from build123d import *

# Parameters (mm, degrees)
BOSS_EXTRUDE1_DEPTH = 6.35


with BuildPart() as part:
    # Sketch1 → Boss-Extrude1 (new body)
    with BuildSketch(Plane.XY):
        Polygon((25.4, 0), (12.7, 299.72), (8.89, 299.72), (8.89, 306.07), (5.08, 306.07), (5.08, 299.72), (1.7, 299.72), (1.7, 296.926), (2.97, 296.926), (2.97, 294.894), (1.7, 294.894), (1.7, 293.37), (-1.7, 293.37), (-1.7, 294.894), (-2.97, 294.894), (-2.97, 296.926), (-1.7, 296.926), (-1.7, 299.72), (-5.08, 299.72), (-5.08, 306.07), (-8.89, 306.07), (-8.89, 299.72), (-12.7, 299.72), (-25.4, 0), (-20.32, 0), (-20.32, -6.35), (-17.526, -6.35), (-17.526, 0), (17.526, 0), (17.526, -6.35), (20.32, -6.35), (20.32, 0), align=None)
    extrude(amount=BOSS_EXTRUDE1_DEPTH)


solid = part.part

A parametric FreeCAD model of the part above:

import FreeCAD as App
import Part
import Sketcher

V = App.Vector
Q = App.Units.Quantity


def add_polygon(sketch, points):
    """Adds a closed chain of lines whose ends are joined by coincident constraints."""
    first, n = sketch.GeometryCount, len(points)
    for a, b in zip(points, points[1:] + points[:1]):
        sketch.addGeometry(Part.LineSegment(App.Vector(*a, 0), App.Vector(*b, 0)), False)
    for i in range(n):
        sketch.addConstraint(Sketcher.Constraint("Coincident", first + i, 2, first + (i + 1) % n, 1))

doc = App.newDocument("Part")
params = doc.addObject("Spreadsheet::Sheet", "Params")
for row, (alias, value) in enumerate([
    ("sketch1_width", "0.2 in"),
    ("sketch1_width2", "0.15 in"),
    ("sketch1_width3", "0.05 in"),
    ("sketch1_width4", "0.11 in"),
    ("sketch1_height", "0.25 in"),
    ("pad1_length", "0.25 in"),
], start=1):
    params.set(f"A{row}", alias)
    params.set(f"B{row}", "=" + value)
    params.setAlias(f"B{row}", alias)

body = doc.addObject("PartDesign::Body", "Body")

# Sketch on XY plane
sketch1 = body.newObject("Sketcher::SketchObject", "Sketch")
sketch1.AttachmentSupport = (doc.getObject("XY_Plane"), [""])
sketch1.MapMode = "FlatFace"
add_polygon(sketch1, [(25.4, 0), (12.7, 299.7), (8.9, 299.7), (8.9, 306.1), (5.1, 306.1), (5.1, 299.7), (1.7, 299.7), (1.7, 296.9), (3, 296.9), (3, 294.9), (1.7, 294.9), (1.7, 293.4), (-1.7, 293.4), (-1.7, 294.9), (-3, 294.9), (-3, 296.9), (-1.7, 296.9), (-1.7, 299.7), (-5.1, 299.7), (-5.1, 306.1), (-8.9, 306.1), (-8.9, 299.7), (-12.7, 299.7), (-25.4, 0), (-20.3, 0), (-20.3, -6.3), (-17.5, -6.3), (-17.5, 0), (17.5, 0), (17.5, -6.3), (20.3, -6.3), (20.3, 0)])  # lines 0-31
sketch1.addConstraint([
    Sketcher.Constraint("Horizontal", 1),
    Sketcher.Constraint("Vertical", 2),
    Sketcher.Constraint("Horizontal", 3),
    Sketcher.Constraint("Vertical", 4),
    Sketcher.Constraint("Horizontal", 5),
    Sketcher.Constraint("Vertical", 6),
    Sketcher.Constraint("Horizontal", 7),
    Sketcher.Constraint("Vertical", 8),
    Sketcher.Constraint("Horizontal", 9),
    Sketcher.Constraint("Vertical", 10),
    Sketcher.Constraint("Horizontal", 11),
    Sketcher.Constraint("Vertical", 12),
    Sketcher.Constraint("Horizontal", 13),
    Sketcher.Constraint("Vertical", 14),
    Sketcher.Constraint("Horizontal", 15),
    Sketcher.Constraint("Vertical", 16),
    Sketcher.Constraint("Horizontal", 17),
    Sketcher.Constraint("Vertical", 18),
    Sketcher.Constraint("Horizontal", 19),
    Sketcher.Constraint("Vertical", 20),
    Sketcher.Constraint("Horizontal", 21),
    Sketcher.Constraint("Horizontal", 23),
    Sketcher.Constraint("Vertical", 24),
    Sketcher.Constraint("Horizontal", 25),
    Sketcher.Constraint("Vertical", 26),
    Sketcher.Constraint("Horizontal", 27),
    Sketcher.Constraint("Vertical", 28),
    Sketcher.Constraint("Horizontal", 29),
    Sketcher.Constraint("Vertical", 30),
    Sketcher.Constraint("Horizontal", 31),
    Sketcher.Constraint("Symmetric", 26, 2, 27, 2, -1, 1),
    Sketcher.Constraint("Symmetric", 23, 2, 30, 2, -1, 1),
    Sketcher.Constraint("Symmetric", 9, 2, 12, 2, -2),
    Sketcher.Constraint("Symmetric", 7, 2, 14, 2, -2),
    Sketcher.Constraint("Symmetric", 5, 2, 16, 2, -2),
    Sketcher.Constraint("Symmetric", 3, 2, 18, 2, -2),
    Sketcher.Constraint("Symmetric", 1, 2, 20, 2, -2),
    Sketcher.Constraint("Symmetric", 22, 2, 31, 2, -2),
    Sketcher.Constraint("Horizontal", 1, 2, 4, 2),
    Sketcher.Constraint("Horizontal", 25, 2, 28, 2),
    Sketcher.Constraint("Vertical", 6, 2, 9, 2),
    Sketcher.Constraint("Equal", 1, 3),
    Sketcher.Constraint("Equal", 19, 21),
    Sketcher.Constraint("Equal", 29, 6),
    Sketcher.Constraint("Equal", 20, 24),
    Sketcher.Constraint("DistanceX", 23, 1, 23, 2, Q("0.2 in")),
    Sketcher.Constraint("DistanceX", 22, 2, -1, 1, Q("1 in")),
    Sketcher.Constraint("DistanceX", 1, 2, 1, 1, Q("0.15 in")),
    Sketcher.Constraint("DistanceX", 7, 1, 7, 2, Q("0.05 in")),
    Sketcher.Constraint("DistanceX", 25, 1, 25, 2, Q("0.11 in")),
    Sketcher.Constraint("DistanceY", 2, 1, 2, 2, Q("0.25 in")),
    Sketcher.Constraint("DistanceY", 8, 2, 8, 1, Q("0.08 in")),
    Sketcher.Constraint("DistanceY", 10, 2, 10, 1, Q("0.06 in")),
    Sketcher.Constraint("DistanceX", -1, 1, 0, 2, Q("0.5 in")),
    Sketcher.Constraint("DistanceY", -1, 1, 0, 2, Q("11.8 in")),
    Sketcher.Constraint("DistanceX", 5, 2, 5, 1, Q("3.38 mm")),
])
sketch1.setExpression("Constraints[77]", "Params.sketch1_width")
sketch1.setExpression("Constraints[79]", "Params.sketch1_width2")
sketch1.setExpression("Constraints[80]", "Params.sketch1_width3")
sketch1.setExpression("Constraints[81]", "Params.sketch1_width4")
sketch1.setExpression("Constraints[82]", "Params.sketch1_height")
pad1 = body.newObject("PartDesign::Pad", "Pad")
pad1.Profile = sketch1
pad1.setExpression("Length", "Params.pad1_length")

doc.recompute()
